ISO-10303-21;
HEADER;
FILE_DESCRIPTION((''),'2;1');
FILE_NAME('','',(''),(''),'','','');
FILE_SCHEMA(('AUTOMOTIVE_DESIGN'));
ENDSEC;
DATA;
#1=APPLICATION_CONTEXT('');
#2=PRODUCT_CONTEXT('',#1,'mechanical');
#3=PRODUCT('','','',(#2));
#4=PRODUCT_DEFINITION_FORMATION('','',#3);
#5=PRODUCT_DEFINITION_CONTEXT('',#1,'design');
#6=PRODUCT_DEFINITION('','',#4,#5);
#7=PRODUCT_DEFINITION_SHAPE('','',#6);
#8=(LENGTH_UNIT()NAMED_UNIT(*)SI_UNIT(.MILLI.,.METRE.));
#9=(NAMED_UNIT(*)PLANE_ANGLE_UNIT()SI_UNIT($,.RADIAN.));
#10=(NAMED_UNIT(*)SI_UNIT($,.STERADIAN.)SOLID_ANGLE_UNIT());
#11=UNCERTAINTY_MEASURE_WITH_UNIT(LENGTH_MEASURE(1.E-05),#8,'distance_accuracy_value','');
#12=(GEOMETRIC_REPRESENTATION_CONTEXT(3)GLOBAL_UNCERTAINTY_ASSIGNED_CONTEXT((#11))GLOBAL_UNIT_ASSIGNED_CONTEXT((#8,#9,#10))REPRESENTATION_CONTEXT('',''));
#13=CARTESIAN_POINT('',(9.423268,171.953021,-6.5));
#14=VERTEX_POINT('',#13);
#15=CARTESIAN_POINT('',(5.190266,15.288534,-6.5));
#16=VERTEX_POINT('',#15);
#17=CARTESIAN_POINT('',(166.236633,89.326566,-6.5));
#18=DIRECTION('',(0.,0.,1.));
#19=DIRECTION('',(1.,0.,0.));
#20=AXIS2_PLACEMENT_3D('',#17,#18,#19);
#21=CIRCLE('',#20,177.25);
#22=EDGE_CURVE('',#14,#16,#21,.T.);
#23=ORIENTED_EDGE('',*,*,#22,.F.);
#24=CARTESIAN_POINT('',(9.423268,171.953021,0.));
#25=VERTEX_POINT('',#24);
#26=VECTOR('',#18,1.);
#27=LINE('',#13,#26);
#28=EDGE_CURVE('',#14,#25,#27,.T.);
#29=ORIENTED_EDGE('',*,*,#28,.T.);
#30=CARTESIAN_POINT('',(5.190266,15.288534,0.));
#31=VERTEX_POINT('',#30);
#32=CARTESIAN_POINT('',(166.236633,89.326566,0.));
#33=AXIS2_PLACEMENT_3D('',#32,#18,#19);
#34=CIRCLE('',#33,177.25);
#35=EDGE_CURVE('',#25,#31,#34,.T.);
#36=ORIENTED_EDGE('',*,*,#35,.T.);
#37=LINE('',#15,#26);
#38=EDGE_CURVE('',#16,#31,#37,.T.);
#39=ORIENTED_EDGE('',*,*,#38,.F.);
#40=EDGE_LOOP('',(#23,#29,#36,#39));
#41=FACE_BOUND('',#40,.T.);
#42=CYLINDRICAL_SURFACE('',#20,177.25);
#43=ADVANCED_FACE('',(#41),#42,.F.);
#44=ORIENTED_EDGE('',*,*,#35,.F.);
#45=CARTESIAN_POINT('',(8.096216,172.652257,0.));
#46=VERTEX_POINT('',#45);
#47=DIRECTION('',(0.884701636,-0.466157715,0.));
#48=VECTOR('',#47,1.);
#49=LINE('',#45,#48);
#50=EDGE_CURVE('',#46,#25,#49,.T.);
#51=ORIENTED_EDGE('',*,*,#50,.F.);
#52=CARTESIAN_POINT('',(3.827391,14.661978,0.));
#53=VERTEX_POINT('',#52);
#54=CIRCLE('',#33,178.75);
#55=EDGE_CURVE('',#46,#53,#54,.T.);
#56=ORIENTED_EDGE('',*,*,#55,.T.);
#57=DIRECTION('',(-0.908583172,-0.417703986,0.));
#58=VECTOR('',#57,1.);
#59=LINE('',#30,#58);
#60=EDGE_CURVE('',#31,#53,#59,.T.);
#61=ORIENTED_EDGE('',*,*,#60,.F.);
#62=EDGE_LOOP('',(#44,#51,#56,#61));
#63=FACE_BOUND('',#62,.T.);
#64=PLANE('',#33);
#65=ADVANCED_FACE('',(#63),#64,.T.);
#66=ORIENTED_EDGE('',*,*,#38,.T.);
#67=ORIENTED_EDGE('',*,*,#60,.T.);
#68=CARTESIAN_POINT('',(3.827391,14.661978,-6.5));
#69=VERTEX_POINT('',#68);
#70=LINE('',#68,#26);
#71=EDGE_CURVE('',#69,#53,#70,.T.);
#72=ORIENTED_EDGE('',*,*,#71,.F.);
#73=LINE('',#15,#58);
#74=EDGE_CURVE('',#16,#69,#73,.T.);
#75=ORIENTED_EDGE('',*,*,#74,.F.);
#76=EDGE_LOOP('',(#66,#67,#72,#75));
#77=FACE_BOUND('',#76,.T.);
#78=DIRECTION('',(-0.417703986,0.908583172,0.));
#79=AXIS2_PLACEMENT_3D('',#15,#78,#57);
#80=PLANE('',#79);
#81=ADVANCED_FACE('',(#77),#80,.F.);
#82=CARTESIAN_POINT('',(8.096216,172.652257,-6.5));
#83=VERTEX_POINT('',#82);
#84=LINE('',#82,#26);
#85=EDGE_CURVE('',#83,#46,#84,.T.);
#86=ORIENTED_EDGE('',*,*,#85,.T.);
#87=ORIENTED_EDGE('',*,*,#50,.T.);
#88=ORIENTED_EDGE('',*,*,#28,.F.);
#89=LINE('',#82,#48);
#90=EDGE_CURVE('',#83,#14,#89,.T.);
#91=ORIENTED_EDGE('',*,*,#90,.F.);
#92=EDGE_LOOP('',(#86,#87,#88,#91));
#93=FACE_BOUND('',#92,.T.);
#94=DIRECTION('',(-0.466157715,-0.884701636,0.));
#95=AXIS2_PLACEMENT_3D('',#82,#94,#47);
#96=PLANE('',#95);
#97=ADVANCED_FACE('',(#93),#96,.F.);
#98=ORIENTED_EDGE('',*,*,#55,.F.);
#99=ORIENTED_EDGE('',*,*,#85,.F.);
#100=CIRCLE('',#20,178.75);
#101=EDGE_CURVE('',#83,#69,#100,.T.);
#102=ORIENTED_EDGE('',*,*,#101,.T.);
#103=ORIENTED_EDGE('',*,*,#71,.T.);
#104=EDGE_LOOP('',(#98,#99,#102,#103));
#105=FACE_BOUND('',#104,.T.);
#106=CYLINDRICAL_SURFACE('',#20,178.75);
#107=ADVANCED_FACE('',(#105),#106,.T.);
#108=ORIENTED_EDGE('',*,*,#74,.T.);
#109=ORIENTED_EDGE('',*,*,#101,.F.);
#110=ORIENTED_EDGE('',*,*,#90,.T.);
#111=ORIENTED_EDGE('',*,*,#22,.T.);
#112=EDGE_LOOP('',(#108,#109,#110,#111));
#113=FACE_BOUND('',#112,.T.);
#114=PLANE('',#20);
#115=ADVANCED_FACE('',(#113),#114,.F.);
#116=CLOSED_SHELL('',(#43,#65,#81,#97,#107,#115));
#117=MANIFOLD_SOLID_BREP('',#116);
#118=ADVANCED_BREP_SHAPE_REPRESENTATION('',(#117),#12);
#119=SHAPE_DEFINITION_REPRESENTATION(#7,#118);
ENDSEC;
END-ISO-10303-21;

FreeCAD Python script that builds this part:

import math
import FreeCAD as App
import Part
import Sketcher

V = App.Vector

doc = App.newDocument("Part")
body = doc.addObject("PartDesign::Body", "Body")

sketch1 = body.newObject("Sketcher::SketchObject", "Sketch")
sketch1.AttachmentSupport = (doc.getObject("XY_Plane"), [""])
sketch1.MapMode = "FlatFace"
sketch1.addGeometry([
    Part.ArcOfCircle(Part.Circle(V(166.236633, 89.326566, 0), V(0, 0, 1), 177.25), math.radians(152.214827), math.radians(204.689715)),
    Part.LineSegment(V(9.423268, 171.953021, 0), V(8.096216, 172.652257, 0)),
    Part.ArcOfCircle(Part.Circle(V(166.236633, 89.326566, 0), V(0, 0, 1), 178.75), math.radians(152.214827), math.radians(204.689715)),
    Part.LineSegment(V(3.827391, 14.661978, 0), V(5.190266, 15.288534, 0)),
], False)
sketch1.addConstraint([
    Sketcher.Constraint("Coincident", 0, 1, 1, 1),
    Sketcher.Constraint("Coincident", 1, 2, 2, 1),
    Sketcher.Constraint("Coincident", 2, 2, 3, 1),
    Sketcher.Constraint("Coincident", 3, 2, 0, 2),
    Sketcher.Constraint("Coincident", 2, 3, 0, 3),
    Sketcher.Constraint("Radius", 0, 177.25),
    Sketcher.Constraint("Radius", 2, 178.75),
    Sketcher.Constraint("DistanceX", -1, 1, 0, 1, 9.423268),
    Sketcher.Constraint("DistanceY", -1, 1, 0, 1, 171.953021),
    Sketcher.Constraint("DistanceX", -1, 1, 2, 2, 3.827391),
    Sketcher.Constraint("DistanceY", -1, 1, 2, 2, 14.661978),
    Sketcher.Constraint("DistanceY", 2, 3, 1, 2, 83.325692),
    Sketcher.Constraint("DistanceX", 3, 2, 1, 2, 2.90595),
])
pad1 = body.newObject("PartDesign::Pad", "Pad")
pad1.Profile = sketch1
pad1.Length = 6.5
pad1.Reversed = True

doc.recompute()
